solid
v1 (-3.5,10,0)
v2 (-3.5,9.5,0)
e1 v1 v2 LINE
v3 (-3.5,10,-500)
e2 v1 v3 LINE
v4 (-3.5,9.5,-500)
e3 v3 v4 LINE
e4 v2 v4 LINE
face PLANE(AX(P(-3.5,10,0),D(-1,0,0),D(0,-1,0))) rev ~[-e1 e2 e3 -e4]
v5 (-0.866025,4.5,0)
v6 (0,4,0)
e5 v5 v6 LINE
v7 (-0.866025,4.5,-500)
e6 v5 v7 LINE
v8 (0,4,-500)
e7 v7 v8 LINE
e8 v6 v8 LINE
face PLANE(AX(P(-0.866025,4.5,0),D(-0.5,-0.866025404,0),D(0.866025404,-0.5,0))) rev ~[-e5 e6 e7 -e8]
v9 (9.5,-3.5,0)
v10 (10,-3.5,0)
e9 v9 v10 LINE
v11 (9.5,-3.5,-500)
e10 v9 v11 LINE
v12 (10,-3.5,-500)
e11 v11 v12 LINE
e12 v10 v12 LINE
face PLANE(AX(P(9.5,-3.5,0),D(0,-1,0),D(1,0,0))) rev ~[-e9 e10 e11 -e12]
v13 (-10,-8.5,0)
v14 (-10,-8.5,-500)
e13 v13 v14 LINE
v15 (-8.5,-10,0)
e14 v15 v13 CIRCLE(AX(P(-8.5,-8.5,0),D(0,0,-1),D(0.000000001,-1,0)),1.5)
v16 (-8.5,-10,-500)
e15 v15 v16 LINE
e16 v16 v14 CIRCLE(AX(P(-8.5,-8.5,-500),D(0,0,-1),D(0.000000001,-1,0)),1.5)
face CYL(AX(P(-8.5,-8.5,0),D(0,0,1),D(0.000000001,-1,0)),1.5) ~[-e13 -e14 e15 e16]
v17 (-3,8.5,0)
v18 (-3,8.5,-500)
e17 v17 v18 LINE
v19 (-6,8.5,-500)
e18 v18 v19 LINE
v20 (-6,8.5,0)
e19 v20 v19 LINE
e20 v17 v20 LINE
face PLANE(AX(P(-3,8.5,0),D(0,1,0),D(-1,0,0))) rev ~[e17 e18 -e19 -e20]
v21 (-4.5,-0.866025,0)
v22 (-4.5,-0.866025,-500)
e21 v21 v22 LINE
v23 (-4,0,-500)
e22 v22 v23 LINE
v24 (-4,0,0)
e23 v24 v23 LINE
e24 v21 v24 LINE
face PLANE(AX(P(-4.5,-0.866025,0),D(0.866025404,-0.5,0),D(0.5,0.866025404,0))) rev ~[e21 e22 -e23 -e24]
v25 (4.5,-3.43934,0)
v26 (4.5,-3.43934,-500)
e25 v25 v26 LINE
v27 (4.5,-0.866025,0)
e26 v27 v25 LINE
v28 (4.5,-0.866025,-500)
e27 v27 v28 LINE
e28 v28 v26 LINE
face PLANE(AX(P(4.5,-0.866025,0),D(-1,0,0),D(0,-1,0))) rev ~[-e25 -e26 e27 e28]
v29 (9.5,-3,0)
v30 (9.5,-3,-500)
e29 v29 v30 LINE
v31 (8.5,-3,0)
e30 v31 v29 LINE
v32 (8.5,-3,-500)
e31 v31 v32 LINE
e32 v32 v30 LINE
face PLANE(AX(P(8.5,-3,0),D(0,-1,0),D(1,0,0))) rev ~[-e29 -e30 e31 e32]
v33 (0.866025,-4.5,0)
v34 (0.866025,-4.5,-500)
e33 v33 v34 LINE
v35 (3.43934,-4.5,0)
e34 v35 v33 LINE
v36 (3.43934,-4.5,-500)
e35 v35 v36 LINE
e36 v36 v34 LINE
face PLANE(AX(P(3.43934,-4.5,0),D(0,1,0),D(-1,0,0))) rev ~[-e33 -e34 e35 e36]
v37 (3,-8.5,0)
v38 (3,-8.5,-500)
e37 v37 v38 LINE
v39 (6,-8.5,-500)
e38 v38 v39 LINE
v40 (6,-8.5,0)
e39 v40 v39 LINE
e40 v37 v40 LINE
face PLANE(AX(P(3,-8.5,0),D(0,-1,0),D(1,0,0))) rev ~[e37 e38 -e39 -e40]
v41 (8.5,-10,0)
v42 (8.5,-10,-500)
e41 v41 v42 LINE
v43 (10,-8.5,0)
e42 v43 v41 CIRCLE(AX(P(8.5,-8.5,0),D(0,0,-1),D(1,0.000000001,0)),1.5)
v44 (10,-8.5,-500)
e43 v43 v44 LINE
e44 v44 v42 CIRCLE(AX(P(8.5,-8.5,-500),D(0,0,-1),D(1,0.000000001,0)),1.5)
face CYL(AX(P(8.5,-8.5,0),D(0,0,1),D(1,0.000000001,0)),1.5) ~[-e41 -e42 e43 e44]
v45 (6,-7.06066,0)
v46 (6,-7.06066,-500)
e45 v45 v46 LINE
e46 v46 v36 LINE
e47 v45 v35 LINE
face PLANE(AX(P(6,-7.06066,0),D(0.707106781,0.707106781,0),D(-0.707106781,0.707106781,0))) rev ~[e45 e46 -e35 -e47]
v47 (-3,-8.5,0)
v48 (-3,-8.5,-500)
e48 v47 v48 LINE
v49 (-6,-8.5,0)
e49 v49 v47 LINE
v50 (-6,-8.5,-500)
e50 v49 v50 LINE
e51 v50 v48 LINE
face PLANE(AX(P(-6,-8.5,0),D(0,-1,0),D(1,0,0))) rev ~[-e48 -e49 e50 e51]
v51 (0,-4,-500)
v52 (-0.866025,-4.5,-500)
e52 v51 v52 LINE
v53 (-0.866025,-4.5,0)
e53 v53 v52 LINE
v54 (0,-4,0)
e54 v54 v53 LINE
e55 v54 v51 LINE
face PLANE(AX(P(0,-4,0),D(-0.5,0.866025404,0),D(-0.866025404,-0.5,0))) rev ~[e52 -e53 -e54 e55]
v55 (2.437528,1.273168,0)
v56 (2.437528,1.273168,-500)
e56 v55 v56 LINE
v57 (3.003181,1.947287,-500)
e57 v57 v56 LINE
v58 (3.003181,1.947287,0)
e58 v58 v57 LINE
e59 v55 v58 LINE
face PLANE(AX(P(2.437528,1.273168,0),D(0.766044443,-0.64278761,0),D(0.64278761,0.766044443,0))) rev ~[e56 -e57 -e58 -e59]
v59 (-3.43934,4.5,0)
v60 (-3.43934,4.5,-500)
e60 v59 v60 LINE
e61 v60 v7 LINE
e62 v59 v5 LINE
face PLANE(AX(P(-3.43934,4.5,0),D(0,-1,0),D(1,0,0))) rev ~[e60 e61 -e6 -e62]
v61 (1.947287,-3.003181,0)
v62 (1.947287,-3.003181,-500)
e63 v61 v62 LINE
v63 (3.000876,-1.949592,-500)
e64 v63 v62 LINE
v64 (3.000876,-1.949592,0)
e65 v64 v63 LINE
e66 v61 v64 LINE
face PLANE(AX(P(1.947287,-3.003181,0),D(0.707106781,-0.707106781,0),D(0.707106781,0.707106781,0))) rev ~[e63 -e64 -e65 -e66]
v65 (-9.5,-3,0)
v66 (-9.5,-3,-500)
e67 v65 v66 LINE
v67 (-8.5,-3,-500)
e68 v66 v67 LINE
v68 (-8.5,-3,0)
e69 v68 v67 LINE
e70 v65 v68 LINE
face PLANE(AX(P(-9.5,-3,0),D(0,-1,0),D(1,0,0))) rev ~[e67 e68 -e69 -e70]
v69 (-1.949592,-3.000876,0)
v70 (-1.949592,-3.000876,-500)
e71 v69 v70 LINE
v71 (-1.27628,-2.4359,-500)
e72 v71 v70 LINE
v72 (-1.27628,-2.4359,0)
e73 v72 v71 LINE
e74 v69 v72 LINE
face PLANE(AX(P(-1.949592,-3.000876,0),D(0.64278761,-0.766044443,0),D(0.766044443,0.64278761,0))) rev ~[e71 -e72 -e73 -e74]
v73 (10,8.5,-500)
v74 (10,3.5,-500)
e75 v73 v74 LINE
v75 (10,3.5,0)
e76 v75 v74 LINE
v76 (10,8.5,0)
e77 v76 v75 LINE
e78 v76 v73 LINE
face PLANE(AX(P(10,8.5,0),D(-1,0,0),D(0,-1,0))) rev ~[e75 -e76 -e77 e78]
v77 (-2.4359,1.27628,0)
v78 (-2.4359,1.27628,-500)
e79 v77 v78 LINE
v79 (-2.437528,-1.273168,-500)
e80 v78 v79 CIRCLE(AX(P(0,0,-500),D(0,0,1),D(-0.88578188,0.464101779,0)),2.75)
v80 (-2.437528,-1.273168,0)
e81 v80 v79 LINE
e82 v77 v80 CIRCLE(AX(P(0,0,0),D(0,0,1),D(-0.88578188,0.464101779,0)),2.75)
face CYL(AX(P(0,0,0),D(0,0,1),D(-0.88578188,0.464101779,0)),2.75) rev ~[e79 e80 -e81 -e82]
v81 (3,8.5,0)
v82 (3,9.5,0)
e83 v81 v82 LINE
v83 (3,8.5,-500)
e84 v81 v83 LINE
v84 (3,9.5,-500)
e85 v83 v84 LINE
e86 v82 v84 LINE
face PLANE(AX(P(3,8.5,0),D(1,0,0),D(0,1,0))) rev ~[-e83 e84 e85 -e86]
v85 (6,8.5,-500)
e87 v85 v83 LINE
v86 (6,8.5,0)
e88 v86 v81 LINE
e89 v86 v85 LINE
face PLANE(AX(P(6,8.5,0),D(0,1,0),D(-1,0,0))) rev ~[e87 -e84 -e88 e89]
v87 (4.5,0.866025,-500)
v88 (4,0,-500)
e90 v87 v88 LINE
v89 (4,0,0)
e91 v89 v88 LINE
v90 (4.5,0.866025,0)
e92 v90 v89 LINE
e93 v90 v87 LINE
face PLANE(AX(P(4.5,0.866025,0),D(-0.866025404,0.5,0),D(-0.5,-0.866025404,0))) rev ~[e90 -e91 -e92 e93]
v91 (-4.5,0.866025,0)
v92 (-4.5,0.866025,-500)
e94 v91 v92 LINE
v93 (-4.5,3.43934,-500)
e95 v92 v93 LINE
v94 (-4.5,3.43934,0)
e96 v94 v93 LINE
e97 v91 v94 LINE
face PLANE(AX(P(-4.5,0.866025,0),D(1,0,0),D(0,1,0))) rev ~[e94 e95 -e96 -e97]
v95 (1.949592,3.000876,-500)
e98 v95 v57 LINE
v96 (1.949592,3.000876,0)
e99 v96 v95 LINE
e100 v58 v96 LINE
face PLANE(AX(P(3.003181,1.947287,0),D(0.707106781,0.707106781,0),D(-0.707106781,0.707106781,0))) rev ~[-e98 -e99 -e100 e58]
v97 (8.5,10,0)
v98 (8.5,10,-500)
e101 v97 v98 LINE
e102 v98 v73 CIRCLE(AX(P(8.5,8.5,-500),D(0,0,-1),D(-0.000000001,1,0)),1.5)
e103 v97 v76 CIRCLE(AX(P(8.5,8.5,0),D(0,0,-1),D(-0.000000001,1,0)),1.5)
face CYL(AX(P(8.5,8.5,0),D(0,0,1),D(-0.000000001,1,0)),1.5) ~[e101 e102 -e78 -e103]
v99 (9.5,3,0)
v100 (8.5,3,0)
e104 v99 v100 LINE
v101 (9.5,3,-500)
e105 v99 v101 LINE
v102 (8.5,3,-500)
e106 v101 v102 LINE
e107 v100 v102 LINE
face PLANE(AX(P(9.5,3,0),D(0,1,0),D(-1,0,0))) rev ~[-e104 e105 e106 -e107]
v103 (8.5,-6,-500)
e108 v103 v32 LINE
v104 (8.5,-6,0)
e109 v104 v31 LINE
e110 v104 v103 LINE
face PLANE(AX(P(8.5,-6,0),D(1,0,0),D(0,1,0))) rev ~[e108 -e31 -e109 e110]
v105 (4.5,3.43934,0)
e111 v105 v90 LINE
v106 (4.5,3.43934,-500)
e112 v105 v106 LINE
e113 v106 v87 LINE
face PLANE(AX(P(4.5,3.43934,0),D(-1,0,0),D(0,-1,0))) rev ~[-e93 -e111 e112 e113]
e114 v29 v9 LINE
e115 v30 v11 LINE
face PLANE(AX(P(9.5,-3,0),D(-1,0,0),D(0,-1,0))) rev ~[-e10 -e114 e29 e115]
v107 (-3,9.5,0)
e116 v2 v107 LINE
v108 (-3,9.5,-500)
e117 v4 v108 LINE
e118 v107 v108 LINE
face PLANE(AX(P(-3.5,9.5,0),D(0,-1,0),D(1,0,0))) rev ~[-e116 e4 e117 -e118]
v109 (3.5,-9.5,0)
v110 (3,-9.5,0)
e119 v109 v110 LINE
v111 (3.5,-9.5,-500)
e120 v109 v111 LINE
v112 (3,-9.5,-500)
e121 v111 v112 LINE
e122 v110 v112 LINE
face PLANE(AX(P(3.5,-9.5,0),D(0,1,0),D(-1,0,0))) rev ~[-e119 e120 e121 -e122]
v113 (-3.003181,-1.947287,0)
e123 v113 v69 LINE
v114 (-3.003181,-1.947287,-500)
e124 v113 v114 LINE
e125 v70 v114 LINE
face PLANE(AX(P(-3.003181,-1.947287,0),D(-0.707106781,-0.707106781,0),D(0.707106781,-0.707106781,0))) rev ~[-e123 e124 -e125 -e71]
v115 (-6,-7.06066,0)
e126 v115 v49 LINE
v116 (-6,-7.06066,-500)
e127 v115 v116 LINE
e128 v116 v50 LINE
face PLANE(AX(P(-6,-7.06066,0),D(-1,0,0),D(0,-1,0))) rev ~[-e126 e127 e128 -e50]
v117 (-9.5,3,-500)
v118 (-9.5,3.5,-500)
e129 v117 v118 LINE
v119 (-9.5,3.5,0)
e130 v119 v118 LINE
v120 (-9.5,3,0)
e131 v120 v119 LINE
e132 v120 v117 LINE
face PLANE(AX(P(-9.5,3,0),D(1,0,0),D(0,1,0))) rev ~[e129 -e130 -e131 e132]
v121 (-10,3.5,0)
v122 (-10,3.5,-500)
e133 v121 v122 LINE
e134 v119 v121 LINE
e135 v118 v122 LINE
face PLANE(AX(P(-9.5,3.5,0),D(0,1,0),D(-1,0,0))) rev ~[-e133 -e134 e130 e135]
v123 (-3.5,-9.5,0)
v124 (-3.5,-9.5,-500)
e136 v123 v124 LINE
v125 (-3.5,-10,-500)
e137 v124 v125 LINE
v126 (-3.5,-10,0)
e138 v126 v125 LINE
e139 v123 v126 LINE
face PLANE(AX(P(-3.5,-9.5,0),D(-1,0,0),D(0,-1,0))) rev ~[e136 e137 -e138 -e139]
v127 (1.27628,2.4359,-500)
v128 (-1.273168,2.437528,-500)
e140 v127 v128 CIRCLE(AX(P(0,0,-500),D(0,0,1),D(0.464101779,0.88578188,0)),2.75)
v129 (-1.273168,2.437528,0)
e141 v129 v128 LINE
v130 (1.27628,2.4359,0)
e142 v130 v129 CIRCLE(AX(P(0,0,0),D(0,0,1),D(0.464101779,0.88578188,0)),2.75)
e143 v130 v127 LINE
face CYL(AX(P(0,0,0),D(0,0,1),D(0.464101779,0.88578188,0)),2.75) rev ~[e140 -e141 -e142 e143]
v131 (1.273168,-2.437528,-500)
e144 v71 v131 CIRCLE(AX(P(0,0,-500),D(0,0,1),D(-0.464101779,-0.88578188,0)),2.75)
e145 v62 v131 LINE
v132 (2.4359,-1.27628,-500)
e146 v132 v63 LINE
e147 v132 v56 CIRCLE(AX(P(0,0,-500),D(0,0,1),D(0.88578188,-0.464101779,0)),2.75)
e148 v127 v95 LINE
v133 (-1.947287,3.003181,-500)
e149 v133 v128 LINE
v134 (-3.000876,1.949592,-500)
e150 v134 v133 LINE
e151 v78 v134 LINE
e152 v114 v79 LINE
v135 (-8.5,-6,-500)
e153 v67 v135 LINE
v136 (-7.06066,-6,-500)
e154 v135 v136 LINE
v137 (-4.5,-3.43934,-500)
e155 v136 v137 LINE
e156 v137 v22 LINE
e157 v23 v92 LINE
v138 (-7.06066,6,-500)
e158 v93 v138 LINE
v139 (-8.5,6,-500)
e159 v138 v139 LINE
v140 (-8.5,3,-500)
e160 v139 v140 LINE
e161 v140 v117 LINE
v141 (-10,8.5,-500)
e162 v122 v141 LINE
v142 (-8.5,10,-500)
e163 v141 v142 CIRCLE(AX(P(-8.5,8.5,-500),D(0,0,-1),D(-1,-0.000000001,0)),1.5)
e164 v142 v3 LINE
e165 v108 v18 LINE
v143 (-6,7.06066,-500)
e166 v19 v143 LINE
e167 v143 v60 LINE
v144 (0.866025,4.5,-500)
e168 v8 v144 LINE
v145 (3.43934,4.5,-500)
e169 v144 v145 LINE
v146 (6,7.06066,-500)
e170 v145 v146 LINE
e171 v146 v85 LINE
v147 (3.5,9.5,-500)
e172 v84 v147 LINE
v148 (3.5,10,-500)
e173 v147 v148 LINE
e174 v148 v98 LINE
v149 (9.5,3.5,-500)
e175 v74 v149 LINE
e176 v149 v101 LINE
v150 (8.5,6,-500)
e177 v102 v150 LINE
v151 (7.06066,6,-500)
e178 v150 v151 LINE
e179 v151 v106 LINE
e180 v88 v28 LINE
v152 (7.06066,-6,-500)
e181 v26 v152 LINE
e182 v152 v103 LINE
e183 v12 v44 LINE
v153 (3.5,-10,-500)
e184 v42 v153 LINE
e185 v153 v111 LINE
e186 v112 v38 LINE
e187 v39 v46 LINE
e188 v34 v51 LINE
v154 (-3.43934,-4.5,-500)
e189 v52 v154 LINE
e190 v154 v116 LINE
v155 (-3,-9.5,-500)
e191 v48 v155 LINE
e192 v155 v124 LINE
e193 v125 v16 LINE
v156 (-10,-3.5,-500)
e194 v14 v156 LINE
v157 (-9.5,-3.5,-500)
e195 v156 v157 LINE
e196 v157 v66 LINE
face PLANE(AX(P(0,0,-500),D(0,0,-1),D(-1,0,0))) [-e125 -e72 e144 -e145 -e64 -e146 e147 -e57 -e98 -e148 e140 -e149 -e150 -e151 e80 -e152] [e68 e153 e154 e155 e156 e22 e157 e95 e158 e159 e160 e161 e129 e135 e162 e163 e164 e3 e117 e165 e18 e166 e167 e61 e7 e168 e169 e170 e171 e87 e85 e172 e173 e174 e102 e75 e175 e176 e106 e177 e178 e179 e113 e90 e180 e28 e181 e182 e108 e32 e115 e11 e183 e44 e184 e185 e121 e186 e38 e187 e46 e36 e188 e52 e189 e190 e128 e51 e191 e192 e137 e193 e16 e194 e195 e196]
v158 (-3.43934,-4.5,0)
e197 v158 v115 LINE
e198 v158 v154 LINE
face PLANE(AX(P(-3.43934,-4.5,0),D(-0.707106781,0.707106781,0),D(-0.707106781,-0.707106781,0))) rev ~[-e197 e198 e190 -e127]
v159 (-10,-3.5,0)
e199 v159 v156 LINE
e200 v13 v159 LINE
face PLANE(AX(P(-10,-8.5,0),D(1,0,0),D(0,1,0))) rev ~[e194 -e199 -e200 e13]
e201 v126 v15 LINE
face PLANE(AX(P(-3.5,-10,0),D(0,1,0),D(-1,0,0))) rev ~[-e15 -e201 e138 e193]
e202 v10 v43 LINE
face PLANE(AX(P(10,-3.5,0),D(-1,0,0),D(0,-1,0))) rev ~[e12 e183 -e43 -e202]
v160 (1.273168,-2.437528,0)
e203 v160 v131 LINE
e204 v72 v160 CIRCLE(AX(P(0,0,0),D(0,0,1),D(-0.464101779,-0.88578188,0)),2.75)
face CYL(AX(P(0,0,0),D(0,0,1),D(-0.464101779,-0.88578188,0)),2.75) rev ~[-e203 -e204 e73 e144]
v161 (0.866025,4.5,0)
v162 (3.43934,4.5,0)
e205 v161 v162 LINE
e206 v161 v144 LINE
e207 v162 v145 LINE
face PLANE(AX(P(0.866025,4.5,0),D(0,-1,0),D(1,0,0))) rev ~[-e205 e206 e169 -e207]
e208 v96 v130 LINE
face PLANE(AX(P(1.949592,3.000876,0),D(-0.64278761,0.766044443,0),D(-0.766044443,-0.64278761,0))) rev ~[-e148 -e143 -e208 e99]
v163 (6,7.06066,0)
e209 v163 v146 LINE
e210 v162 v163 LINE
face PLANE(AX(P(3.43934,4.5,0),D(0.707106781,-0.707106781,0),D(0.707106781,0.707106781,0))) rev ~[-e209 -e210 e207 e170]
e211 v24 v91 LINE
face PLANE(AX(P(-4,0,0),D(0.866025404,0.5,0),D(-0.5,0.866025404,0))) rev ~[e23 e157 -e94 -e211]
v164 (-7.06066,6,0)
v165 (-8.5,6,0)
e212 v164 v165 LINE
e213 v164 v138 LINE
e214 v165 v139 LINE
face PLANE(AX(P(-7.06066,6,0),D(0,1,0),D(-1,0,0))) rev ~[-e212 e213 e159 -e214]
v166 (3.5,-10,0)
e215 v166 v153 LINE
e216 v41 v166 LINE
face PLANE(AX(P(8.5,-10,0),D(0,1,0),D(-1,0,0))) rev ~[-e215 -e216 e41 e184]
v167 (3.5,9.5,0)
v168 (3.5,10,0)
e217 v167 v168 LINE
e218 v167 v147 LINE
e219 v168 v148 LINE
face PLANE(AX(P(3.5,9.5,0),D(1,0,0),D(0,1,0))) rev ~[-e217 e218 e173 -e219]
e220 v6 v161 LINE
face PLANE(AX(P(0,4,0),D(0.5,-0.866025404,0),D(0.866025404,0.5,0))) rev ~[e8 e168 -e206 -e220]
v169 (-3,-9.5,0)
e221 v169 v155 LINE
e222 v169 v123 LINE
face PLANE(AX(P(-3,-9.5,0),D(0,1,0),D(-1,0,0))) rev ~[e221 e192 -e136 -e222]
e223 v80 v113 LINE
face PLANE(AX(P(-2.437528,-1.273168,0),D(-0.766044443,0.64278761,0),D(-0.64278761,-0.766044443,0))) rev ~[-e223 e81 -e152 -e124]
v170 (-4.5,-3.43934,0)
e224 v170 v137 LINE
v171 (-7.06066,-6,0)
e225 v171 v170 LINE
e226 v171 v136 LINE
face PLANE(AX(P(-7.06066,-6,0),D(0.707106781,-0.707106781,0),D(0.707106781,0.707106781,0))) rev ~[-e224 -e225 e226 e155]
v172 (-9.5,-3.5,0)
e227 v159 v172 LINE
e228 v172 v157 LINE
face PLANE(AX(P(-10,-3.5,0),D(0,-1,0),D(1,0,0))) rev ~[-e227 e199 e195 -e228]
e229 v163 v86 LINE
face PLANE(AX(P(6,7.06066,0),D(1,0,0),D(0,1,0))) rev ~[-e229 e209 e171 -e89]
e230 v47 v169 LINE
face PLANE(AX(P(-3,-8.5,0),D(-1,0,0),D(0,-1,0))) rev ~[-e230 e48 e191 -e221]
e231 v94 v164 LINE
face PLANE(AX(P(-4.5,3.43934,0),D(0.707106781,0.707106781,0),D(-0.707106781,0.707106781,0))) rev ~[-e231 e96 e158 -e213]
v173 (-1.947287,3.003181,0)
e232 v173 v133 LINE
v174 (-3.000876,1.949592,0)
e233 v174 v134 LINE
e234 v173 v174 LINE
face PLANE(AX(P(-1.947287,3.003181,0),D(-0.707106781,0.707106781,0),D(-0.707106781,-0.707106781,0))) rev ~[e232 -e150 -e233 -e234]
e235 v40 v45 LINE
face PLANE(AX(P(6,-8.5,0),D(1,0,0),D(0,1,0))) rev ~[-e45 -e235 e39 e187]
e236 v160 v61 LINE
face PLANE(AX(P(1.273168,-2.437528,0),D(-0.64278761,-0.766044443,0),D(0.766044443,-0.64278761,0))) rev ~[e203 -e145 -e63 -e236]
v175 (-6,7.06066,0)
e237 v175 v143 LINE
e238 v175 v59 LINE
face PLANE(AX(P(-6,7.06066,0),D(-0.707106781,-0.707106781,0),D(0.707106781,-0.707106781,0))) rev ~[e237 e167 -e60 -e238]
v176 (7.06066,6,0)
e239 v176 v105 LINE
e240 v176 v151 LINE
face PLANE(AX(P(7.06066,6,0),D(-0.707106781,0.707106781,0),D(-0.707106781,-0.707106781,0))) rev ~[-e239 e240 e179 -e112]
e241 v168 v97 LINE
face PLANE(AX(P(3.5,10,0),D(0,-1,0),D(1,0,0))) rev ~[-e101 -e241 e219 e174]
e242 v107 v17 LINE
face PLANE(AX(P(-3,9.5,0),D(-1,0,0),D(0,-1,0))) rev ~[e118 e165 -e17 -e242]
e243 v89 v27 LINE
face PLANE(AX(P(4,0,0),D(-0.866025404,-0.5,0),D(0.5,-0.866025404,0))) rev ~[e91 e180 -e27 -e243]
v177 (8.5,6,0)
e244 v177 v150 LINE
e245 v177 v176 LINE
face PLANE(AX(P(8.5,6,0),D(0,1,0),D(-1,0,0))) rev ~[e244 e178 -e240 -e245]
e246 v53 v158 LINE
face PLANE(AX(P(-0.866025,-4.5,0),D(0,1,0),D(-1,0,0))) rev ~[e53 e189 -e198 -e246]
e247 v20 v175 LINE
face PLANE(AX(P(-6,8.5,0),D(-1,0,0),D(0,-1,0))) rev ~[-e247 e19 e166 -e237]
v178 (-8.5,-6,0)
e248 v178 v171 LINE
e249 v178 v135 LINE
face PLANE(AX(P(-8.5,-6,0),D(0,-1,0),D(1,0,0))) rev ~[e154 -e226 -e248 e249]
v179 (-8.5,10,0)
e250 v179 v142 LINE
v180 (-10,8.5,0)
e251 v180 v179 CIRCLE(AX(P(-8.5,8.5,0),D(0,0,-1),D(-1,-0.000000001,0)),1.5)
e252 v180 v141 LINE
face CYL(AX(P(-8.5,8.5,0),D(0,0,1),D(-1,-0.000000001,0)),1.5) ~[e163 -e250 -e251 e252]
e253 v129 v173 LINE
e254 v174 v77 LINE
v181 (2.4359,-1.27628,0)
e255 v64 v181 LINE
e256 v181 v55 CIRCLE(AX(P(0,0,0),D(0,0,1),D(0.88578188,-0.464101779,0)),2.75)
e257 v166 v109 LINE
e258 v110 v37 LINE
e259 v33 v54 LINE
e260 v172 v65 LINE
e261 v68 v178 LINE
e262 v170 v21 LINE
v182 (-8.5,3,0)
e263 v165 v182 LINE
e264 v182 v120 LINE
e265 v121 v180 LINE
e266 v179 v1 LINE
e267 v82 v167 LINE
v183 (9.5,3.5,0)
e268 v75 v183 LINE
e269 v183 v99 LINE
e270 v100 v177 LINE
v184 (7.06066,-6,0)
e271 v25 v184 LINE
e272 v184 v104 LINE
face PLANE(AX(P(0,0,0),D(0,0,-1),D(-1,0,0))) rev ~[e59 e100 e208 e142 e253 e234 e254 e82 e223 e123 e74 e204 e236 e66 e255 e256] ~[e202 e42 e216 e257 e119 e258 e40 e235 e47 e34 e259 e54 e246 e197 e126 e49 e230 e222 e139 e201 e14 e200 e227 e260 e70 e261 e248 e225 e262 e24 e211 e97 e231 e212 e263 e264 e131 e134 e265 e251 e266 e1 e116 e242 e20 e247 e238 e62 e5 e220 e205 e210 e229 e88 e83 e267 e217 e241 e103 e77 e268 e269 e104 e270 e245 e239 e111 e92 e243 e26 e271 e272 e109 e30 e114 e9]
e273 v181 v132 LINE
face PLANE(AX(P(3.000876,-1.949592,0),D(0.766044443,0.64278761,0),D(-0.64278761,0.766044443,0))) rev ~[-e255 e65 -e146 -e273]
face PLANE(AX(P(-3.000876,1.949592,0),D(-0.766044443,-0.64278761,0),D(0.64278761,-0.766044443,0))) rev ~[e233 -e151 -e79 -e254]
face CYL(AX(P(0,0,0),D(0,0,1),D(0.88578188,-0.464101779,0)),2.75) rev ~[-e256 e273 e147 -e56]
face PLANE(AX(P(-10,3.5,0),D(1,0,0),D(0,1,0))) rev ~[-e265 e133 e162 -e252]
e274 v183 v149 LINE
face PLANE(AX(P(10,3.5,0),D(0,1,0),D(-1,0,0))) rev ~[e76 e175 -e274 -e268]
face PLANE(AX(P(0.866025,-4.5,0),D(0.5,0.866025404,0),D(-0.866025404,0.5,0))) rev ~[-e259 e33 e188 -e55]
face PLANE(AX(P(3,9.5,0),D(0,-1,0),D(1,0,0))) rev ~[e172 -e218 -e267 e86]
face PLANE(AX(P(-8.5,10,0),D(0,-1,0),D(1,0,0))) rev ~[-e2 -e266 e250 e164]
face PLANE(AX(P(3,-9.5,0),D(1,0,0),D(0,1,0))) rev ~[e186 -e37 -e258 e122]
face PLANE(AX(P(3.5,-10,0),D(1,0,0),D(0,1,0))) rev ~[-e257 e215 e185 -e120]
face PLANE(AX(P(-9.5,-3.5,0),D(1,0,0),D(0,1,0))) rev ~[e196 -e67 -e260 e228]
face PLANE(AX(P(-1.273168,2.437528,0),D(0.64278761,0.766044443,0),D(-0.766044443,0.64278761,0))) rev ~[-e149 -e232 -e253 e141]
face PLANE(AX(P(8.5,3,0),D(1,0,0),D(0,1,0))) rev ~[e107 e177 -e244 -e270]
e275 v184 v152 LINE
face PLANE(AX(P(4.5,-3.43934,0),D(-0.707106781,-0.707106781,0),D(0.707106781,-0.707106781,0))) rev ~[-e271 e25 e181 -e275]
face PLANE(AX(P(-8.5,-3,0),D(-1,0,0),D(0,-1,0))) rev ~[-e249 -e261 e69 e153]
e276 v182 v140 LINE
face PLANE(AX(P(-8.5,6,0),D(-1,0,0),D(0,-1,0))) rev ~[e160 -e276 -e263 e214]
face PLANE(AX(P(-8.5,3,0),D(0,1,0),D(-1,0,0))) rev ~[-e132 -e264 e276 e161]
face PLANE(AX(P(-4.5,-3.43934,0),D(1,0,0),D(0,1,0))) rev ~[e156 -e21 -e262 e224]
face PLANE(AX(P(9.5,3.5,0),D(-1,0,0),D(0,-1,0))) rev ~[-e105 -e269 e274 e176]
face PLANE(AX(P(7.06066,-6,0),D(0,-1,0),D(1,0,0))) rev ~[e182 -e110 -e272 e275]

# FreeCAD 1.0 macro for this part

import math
import FreeCAD as App
import Part
import Sketcher
Q = App.Units.Quantity

doc = App.newDocument("Part")
params = doc.addObject("Spreadsheet::Sheet", "Params")
for row, (alias, value) in enumerate([
    ("sketch1_radius", "1.5 mm"),
    ("sketch1_width", "1 mm"),
    ("sketch1_width2", "5 mm"),
    ("sketch1_width3", "3 mm"),
    ("sketch1_length", "1 mm"),
    ("pad1_length", "500 mm"),
    ("sketch2_radius", "2.75 mm"),
    ("sketch2_length", "0.88 mm"),
    ("sketch2_length2", "1.49 mm"),
], start=1):
    params.set(f"A{row}", alias)
    params.set(f"B{row}", "=" + value)
    params.setAlias(f"B{row}", alias)

body = doc.addObject("PartDesign::Body", "Body")

# Sketch on XY plane
sketch1 = body.newObject("Sketcher::SketchObject", "Sketch")
sketch1.AttachmentSupport = (doc.getObject("XY_Plane"), [""])
sketch1.MapMode = "FlatFace"
sketch1.addGeometry([
    Part.LineSegment(App.Vector(-4.5, 0.9, 0), App.Vector(-4, 0, 0)),  # 0
    Part.LineSegment(App.Vector(-4, 0, 0), App.Vector(-4.5, -0.9, 0)),  # 1
    Part.LineSegment(App.Vector(-4.5, -0.9, 0), App.Vector(-4.5, -3.4, 0)),  # 2
    Part.LineSegment(App.Vector(-4.5, -3.4, 0), App.Vector(-7.1, -6, 0)),  # 3
    Part.LineSegment(App.Vector(-7.1, -6, 0), App.Vector(-8.5, -6, 0)),  # 4
    Part.LineSegment(App.Vector(-8.5, -6, 0), App.Vector(-8.5, -3, 0)),  # 5
    Part.LineSegment(App.Vector(-8.5, -3, 0), App.Vector(-9.5, -3, 0)),  # 6
    Part.LineSegment(App.Vector(-9.5, -3, 0), App.Vector(-9.5, -3.5, 0)),  # 7
    Part.LineSegment(App.Vector(-9.5, -3.5, 0), App.Vector(-10, -3.5, 0)),  # 8
    Part.LineSegment(App.Vector(-10, -3.5, 0), App.Vector(-10, -8.5, 0)),  # 9
    Part.ArcOfCircle(Part.Circle(App.Vector(-8.5, -8.5, 0), App.Vector(0, 0, 1), 1.5), math.radians(180), math.radians(270)),  # 10
    Part.LineSegment(App.Vector(-8.5, -10, 0), App.Vector(-3.5, -10, 0)),  # 11
    Part.LineSegment(App.Vector(-3.5, -10, 0), App.Vector(-3.5, -9.5, 0)),  # 12
    Part.LineSegment(App.Vector(-3.5, -9.5, 0), App.Vector(-3, -9.5, 0)),  # 13
    Part.LineSegment(App.Vector(-3, -9.5, 0), App.Vector(-3, -8.5, 0)),  # 14
    Part.LineSegment(App.Vector(-3, -8.5, 0), App.Vector(-6, -8.5, 0)),  # 15
    Part.LineSegment(App.Vector(-6, -8.5, 0), App.Vector(-6, -7.1, 0)),  # 16
    Part.LineSegment(App.Vector(-6, -7.1, 0), App.Vector(-3.4, -4.5, 0)),  # 17
    Part.LineSegment(App.Vector(-3.4, -4.5, 0), App.Vector(-0.9, -4.5, 0)),  # 18
    Part.LineSegment(App.Vector(-0.9, -4.5, 0), App.Vector(0, -4, 0)),  # 19
    Part.LineSegment(App.Vector(0, -4, 0), App.Vector(0.9, -4.5, 0)),  # 20
    Part.LineSegment(App.Vector(0.9, -4.5, 0), App.Vector(3.4, -4.5, 0)),  # 21
    Part.LineSegment(App.Vector(3.4, -4.5, 0), App.Vector(6, -7.1, 0)),  # 22
    Part.LineSegment(App.Vector(6, -7.1, 0), App.Vector(6, -8.5, 0)),  # 23
    Part.LineSegment(App.Vector(6, -8.5, 0), App.Vector(3, -8.5, 0)),  # 24
    Part.LineSegment(App.Vector(3, -8.5, 0), App.Vector(3, -9.5, 0)),  # 25
    Part.LineSegment(App.Vector(3, -9.5, 0), App.Vector(3.5, -9.5, 0)),  # 26
    Part.LineSegment(App.Vector(3.5, -9.5, 0), App.Vector(3.5, -10, 0)),  # 27
    Part.LineSegment(App.Vector(3.5, -10, 0), App.Vector(8.5, -10, 0)),  # 28
    Part.ArcOfCircle(Part.Circle(App.Vector(8.5, -8.5, 0), App.Vector(0, 0, 1), 1.5), math.radians(-90), math.radians(0)),  # 29
    Part.LineSegment(App.Vector(10, -8.5, 0), App.Vector(10, -3.5, 0)),  # 30
    Part.LineSegment(App.Vector(10, -3.5, 0), App.Vector(9.5, -3.5, 0)),  # 31
    Part.LineSegment(App.Vector(9.5, -3.5, 0), App.Vector(9.5, -3, 0)),  # 32
    Part.LineSegment(App.Vector(9.5, -3, 0), App.Vector(8.5, -3, 0)),  # 33
    Part.LineSegment(App.Vector(8.5, -3, 0), App.Vector(8.5, -6, 0)),  # 34
    Part.LineSegment(App.Vector(8.5, -6, 0), App.Vector(7.1, -6, 0)),  # 35
    Part.LineSegment(App.Vector(7.1, -6, 0), App.Vector(4.5, -3.4, 0)),  # 36
    Part.LineSegment(App.Vector(4.5, -3.4, 0), App.Vector(4.5, -0.9, 0)),  # 37
    Part.LineSegment(App.Vector(4.5, -0.9, 0), App.Vector(4, 0, 0)),  # 38
    Part.LineSegment(App.Vector(4, 0, 0), App.Vector(4.5, 0.9, 0)),  # 39
    Part.LineSegment(App.Vector(4.5, 0.9, 0), App.Vector(4.5, 3.4, 0)),  # 40
    Part.LineSegment(App.Vector(4.5, 3.4, 0), App.Vector(7.1, 6, 0)),  # 41
    Part.LineSegment(App.Vector(7.1, 6, 0), App.Vector(8.5, 6, 0)),  # 42
    Part.LineSegment(App.Vector(8.5, 6, 0), App.Vector(8.5, 3, 0)),  # 43
    Part.LineSegment(App.Vector(8.5, 3, 0), App.Vector(9.5, 3, 0)),  # 44
    Part.LineSegment(App.Vector(9.5, 3, 0), App.Vector(9.5, 3.5, 0)),  # 45
    Part.LineSegment(App.Vector(9.5, 3.5, 0), App.Vector(10, 3.5, 0)),  # 46
    Part.LineSegment(App.Vector(10, 3.5, 0), App.Vector(10, 8.5, 0)),  # 47
    Part.ArcOfCircle(Part.Circle(App.Vector(8.5, 8.5, 0), App.Vector(0, 0, 1), 1.5), math.radians(0), math.radians(90)),  # 48
    Part.LineSegment(App.Vector(8.5, 10, 0), App.Vector(3.5, 10, 0)),  # 49
    Part.LineSegment(App.Vector(3.5, 10, 0), App.Vector(3.5, 9.5, 0)),  # 50
    Part.LineSegment(App.Vector(3.5, 9.5, 0), App.Vector(3, 9.5, 0)),  # 51
    Part.LineSegment(App.Vector(3, 9.5, 0), App.Vector(3, 8.5, 0)),  # 52
    Part.LineSegment(App.Vector(3, 8.5, 0), App.Vector(6, 8.5, 0)),  # 53
    Part.LineSegment(App.Vector(6, 8.5, 0), App.Vector(6, 7.1, 0)),  # 54
    Part.LineSegment(App.Vector(6, 7.1, 0), App.Vector(3.4, 4.5, 0)),  # 55
    Part.LineSegment(App.Vector(3.4, 4.5, 0), App.Vector(0.9, 4.5, 0)),  # 56
    Part.LineSegment(App.Vector(0.9, 4.5, 0), App.Vector(0, 4, 0)),  # 57
    Part.LineSegment(App.Vector(0, 4, 0), App.Vector(-0.9, 4.5, 0)),  # 58
    Part.LineSegment(App.Vector(-0.9, 4.5, 0), App.Vector(-3.4, 4.5, 0)),  # 59
    Part.LineSegment(App.Vector(-3.4, 4.5, 0), App.Vector(-6, 7.1, 0)),  # 60
    Part.LineSegment(App.Vector(-6, 7.1, 0), App.Vector(-6, 8.5, 0)),  # 61
    Part.LineSegment(App.Vector(-6, 8.5, 0), App.Vector(-3, 8.5, 0)),  # 62
    Part.LineSegment(App.Vector(-3, 8.5, 0), App.Vector(-3, 9.5, 0)),  # 63
    Part.LineSegment(App.Vector(-3, 9.5, 0), App.Vector(-3.5, 9.5, 0)),  # 64
    Part.LineSegment(App.Vector(-3.5, 9.5, 0), App.Vector(-3.5, 10, 0)),  # 65
    Part.LineSegment(App.Vector(-3.5, 10, 0), App.Vector(-8.5, 10, 0)),  # 66
    Part.ArcOfCircle(Part.Circle(App.Vector(-8.5, 8.5, 0), App.Vector(0, 0, 1), 1.5), math.radians(90), math.radians(180)),  # 67
    Part.LineSegment(App.Vector(-10, 8.5, 0), App.Vector(-10, 3.5, 0)),  # 68
    Part.LineSegment(App.Vector(-10, 3.5, 0), App.Vector(-9.5, 3.5, 0)),  # 69
    Part.LineSegment(App.Vector(-9.5, 3.5, 0), App.Vector(-9.5, 3, 0)),  # 70
    Part.LineSegment(App.Vector(-9.5, 3, 0), App.Vector(-8.5, 3, 0)),  # 71
    Part.LineSegment(App.Vector(-8.5, 3, 0), App.Vector(-8.5, 6, 0)),  # 72
    Part.LineSegment(App.Vector(-8.5, 6, 0), App.Vector(-7.1, 6, 0)),  # 73
    Part.LineSegment(App.Vector(-7.1, 6, 0), App.Vector(-4.5, 3.4, 0)),  # 74
    Part.LineSegment(App.Vector(-4.5, 3.4, 0), App.Vector(-4.5, 0.9, 0)),  # 75
], False)
sketch1.addConstraint([
    Sketcher.Constraint("Coincident", 0, 2, 1, 1),
    Sketcher.Constraint("Coincident", 1, 2, 2, 1),
    Sketcher.Constraint("Coincident", 2, 2, 3, 1),
    Sketcher.Constraint("Coincident", 3, 2, 4, 1),
    Sketcher.Constraint("Coincident", 4, 2, 5, 1),
    Sketcher.Constraint("Coincident", 5, 2, 6, 1),
    Sketcher.Constraint("Coincident", 6, 2, 7, 1),
    Sketcher.Constraint("Coincident", 7, 2, 8, 1),
    Sketcher.Constraint("Coincident", 8, 2, 9, 1),
    Sketcher.Constraint("Tangent", 9, 2, 10, 1),
    Sketcher.Constraint("Tangent", 10, 2, 11, 1),
    Sketcher.Constraint("Coincident", 11, 2, 12, 1),
    Sketcher.Constraint("Coincident", 12, 2, 13, 1),
    Sketcher.Constraint("Coincident", 13, 2, 14, 1),
    Sketcher.Constraint("Coincident", 14, 2, 15, 1),
    Sketcher.Constraint("Coincident", 15, 2, 16, 1),
    Sketcher.Constraint("Coincident", 16, 2, 17, 1),
    Sketcher.Constraint("Coincident", 17, 2, 18, 1),
    Sketcher.Constraint("Coincident", 18, 2, 19, 1),
    Sketcher.Constraint("Coincident", 19, 2, 20, 1),
    Sketcher.Constraint("Coincident", 20, 2, 21, 1),
    Sketcher.Constraint("Coincident", 21, 2, 22, 1),
    Sketcher.Constraint("Coincident", 22, 2, 23, 1),
    Sketcher.Constraint("Coincident", 23, 2, 24, 1),
    Sketcher.Constraint("Coincident", 24, 2, 25, 1),
    Sketcher.Constraint("Coincident", 25, 2, 26, 1),
    Sketcher.Constraint("Coincident", 26, 2, 27, 1),
    Sketcher.Constraint("Coincident", 27, 2, 28, 1),
    Sketcher.Constraint("Tangent", 28, 2, 29, 1),
    Sketcher.Constraint("Tangent", 29, 2, 30, 1),
    Sketcher.Constraint("Coincident", 30, 2, 31, 1),
    Sketcher.Constraint("Coincident", 31, 2, 32, 1),
    Sketcher.Constraint("Coincident", 32, 2, 33, 1),
    Sketcher.Constraint("Coincident", 33, 2, 34, 1),
    Sketcher.Constraint("Coincident", 34, 2, 35, 1),
    Sketcher.Constraint("Coincident", 35, 2, 36, 1),
    Sketcher.Constraint("Coincident", 36, 2, 37, 1),
    Sketcher.Constraint("Coincident", 37, 2, 38, 1),
    Sketcher.Constraint("Coincident", 38, 2, 39, 1),
    Sketcher.Constraint("Coincident", 39, 2, 40, 1),
    Sketcher.Constraint("Coincident", 40, 2, 41, 1),
    Sketcher.Constraint("Coincident", 41, 2, 42, 1),
    Sketcher.Constraint("Coincident", 42, 2, 43, 1),
    Sketcher.Constraint("Coincident", 43, 2, 44, 1),
    Sketcher.Constraint("Coincident", 44, 2, 45, 1),
    Sketcher.Constraint("Coincident", 45, 2, 46, 1),
    Sketcher.Constraint("Coincident", 46, 2, 47, 1),
    Sketcher.Constraint("Tangent", 47, 2, 48, 1),
    Sketcher.Constraint("Tangent", 48, 2, 49, 1),
    Sketcher.Constraint("Coincident", 49, 2, 50, 1),
    Sketcher.Constraint("Coincident", 50, 2, 51, 1),
    Sketcher.Constraint("Coincident", 51, 2, 52, 1),
    Sketcher.Constraint("Coincident", 52, 2, 53, 1),
    Sketcher.Constraint("Coincident", 53, 2, 54, 1),
    Sketcher.Constraint("Coincident", 54, 2, 55, 1),
    Sketcher.Constraint("Coincident", 55, 2, 56, 1),
    Sketcher.Constraint("Coincident", 56, 2, 57, 1),
    Sketcher.Constraint("Coincident", 57, 2, 58, 1),
    Sketcher.Constraint("Coincident", 58, 2, 59, 1),
    Sketcher.Constraint("Coincident", 59, 2, 60, 1),
    Sketcher.Constraint("Coincident", 60, 2, 61, 1),
    Sketcher.Constraint("Coincident", 61, 2, 62, 1),
    Sketcher.Constraint("Coincident", 62, 2, 63, 1),
    Sketcher.Constraint("Coincident", 63, 2, 64, 1),
    Sketcher.Constraint("Coincident", 64, 2, 65, 1),
    Sketcher.Constraint("Coincident", 65, 2, 66, 1),
    Sketcher.Constraint("Tangent", 66, 2, 67, 1),
    Sketcher.Constraint("Tangent", 67, 2, 68, 1),
    Sketcher.Constraint("Coincident", 68, 2, 69, 1),
    Sketcher.Constraint("Coincident", 69, 2, 70, 1),
    Sketcher.Constraint("Coincident", 70, 2, 71, 1),
    Sketcher.Constraint("Coincident", 71, 2, 72, 1),
    Sketcher.Constraint("Coincident", 72, 2, 73, 1),
    Sketcher.Constraint("Coincident", 73, 2, 74, 1),
    Sketcher.Constraint("Coincident", 74, 2, 75, 1),
    Sketcher.Constraint("Coincident", 75, 2, 0, 1),
    Sketcher.Constraint("Vertical", 2),
    Sketcher.Constraint("Horizontal", 4),
    Sketcher.Constraint("Vertical", 5),
    Sketcher.Constraint("Horizontal", 6),
    Sketcher.Constraint("Vertical", 7),
    Sketcher.Constraint("Horizontal", 8),
    Sketcher.Constraint("Vertical", 9),
    Sketcher.Constraint("Horizontal", 11),
    Sketcher.Constraint("Vertical", 12),
    Sketcher.Constraint("Horizontal", 13),
    Sketcher.Constraint("Vertical", 14),
    Sketcher.Constraint("Horizontal", 15),
    Sketcher.Constraint("Vertical", 16),
    Sketcher.Constraint("Horizontal", 18),
    Sketcher.Constraint("Horizontal", 21),
    Sketcher.Constraint("Vertical", 23),
    Sketcher.Constraint("Horizontal", 24),
    Sketcher.Constraint("Vertical", 25),
    Sketcher.Constraint("Horizontal", 26),
    Sketcher.Constraint("Vertical", 27),
    Sketcher.Constraint("Horizontal", 28),
    Sketcher.Constraint("Vertical", 30),
    Sketcher.Constraint("Horizontal", 31),
    Sketcher.Constraint("Vertical", 32),
    Sketcher.Constraint("Horizontal", 33),
    Sketcher.Constraint("Vertical", 34),
    Sketcher.Constraint("Horizontal", 35),
    Sketcher.Constraint("Vertical", 37),
    Sketcher.Constraint("Vertical", 40),
    Sketcher.Constraint("Horizontal", 42),
    Sketcher.Constraint("Vertical", 43),
    Sketcher.Constraint("Horizontal", 44),
    Sketcher.Constraint("Vertical", 45),
    Sketcher.Constraint("Horizontal", 46),
    Sketcher.Constraint("Vertical", 47),
    Sketcher.Constraint("Horizontal", 49),
    Sketcher.Constraint("Vertical", 50),
    Sketcher.Constraint("Horizontal", 51),
    Sketcher.Constraint("Vertical", 52),
    Sketcher.Constraint("Horizontal", 53),
    Sketcher.Constraint("Vertical", 54),
    Sketcher.Constraint("Horizontal", 56),
    Sketcher.Constraint("Horizontal", 59),
    Sketcher.Constraint("Vertical", 61),
    Sketcher.Constraint("Horizontal", 62),
    Sketcher.Constraint("Vertical", 63),
    Sketcher.Constraint("Horizontal", 64),
    Sketcher.Constraint("Vertical", 65),
    Sketcher.Constraint("Horizontal", 66),
    Sketcher.Constraint("Vertical", 68),
    Sketcher.Constraint("Horizontal", 69),
    Sketcher.Constraint("Vertical", 70),
    Sketcher.Constraint("Horizontal", 71),
    Sketcher.Constraint("Vertical", 72),
    Sketcher.Constraint("Horizontal", 73),
    Sketcher.Constraint("Vertical", 75),
    Sketcher.Constraint("Equal", 10, 29),
    Sketcher.Constraint("Equal", 29, 48),
    Sketcher.Constraint("Equal", 48, 67),
    Sketcher.Constraint("Symmetric", 10, 3, 48, 3, -1, 1),
    Sketcher.Constraint("Symmetric", 29, 3, 67, 3, -1, 1),
    Sketcher.Constraint("Symmetric", 0, 2, 38, 2, -1, 1),
    Sketcher.Constraint("Symmetric", 1, 2, 39, 2, -1, 1),
    Sketcher.Constraint("Symmetric", 3, 2, 41, 2, -1, 1),
    Sketcher.Constraint("Symmetric", 5, 2, 43, 2, -1, 1),
    Sketcher.Constraint("Symmetric", 7, 2, 45, 2, -1, 1),
    Sketcher.Constraint("Symmetric", 12, 2, 50, 2, -1, 1),
    Sketcher.Constraint("Symmetric", 14, 2, 52, 2, -1, 1),
    Sketcher.Constraint("Symmetric", 16, 2, 54, 2, -1, 1),
    Sketcher.Constraint("Symmetric", 17, 2, 55, 2, -1, 1),
    Sketcher.Constraint("Symmetric", 19, 2, 57, 2, -1, 1),
    Sketcher.Constraint("Symmetric", 20, 2, 58, 2, -1, 1),
    Sketcher.Constraint("Symmetric", 22, 2, 60, 2, -1, 1),
    Sketcher.Constraint("Symmetric", 24, 2, 62, 2, -1, 1),
    Sketcher.Constraint("Symmetric", 26, 2, 64, 2, -1, 1),
    Sketcher.Constraint("Symmetric", 31, 2, 69, 2, -1, 1),
    Sketcher.Constraint("Symmetric", 33, 2, 71, 2, -1, 1),
    Sketcher.Constraint("Symmetric", 35, 2, 73, 2, -1, 1),
    Sketcher.Constraint("Symmetric", 36, 2, 74, 2, -1, 1),
    Sketcher.Constraint("Symmetric", 10, 3, 29, 3, -2),
    Sketcher.Constraint("Symmetric", 18, 2, 20, 2, -2),
    Sketcher.Constraint("Symmetric", 16, 2, 22, 2, -2),
    Sketcher.Constraint("Symmetric", 14, 2, 24, 2, -2),
    Sketcher.Constraint("Symmetric", 12, 2, 26, 2, -2),
    Sketcher.Constraint("Symmetric", 7, 2, 31, 2, -2),
    Sketcher.Constraint("Symmetric", 5, 2, 33, 2, -2),
    Sketcher.Constraint("Symmetric", 3, 2, 35, 2, -2),
    Sketcher.Constraint("Symmetric", 2, 2, 36, 2, -2),
    Sketcher.Constraint("PointOnObject", 0, 2, -1),
    Sketcher.Constraint("PointOnObject", 19, 2, -2),
    Sketcher.Constraint("Parallel", 3, 17),
    Sketcher.Constraint("Perpendicular", 0, 19),
    Sketcher.Constraint("Perpendicular", 1, 20),
    Sketcher.Constraint("Perpendicular", 17, 22),
    Sketcher.Constraint("Parallel", 22, 36),
    Sketcher.Constraint("Perpendicular", 19, 38),
    Sketcher.Constraint("Perpendicular", 36, 41),
    Sketcher.Constraint("Perpendicular", 38, 57),
    Sketcher.Constraint("Perpendicular", 55, 60),
    Sketcher.Constraint("Horizontal", 9, 2, 14, 2),
    Sketcher.Constraint("Vertical", 67, 3, 4, 2),
    Sketcher.Constraint("Equal", 8, 13),
    Sketcher.Constraint("Equal", 59, 2),
    Sketcher.Constraint("Equal", 62, 5),
    Sketcher.Constraint("Equal", 69, 7),
    Sketcher.Constraint("Equal", 66, 9),
    Sketcher.Constraint("Equal", 7, 12),
    Sketcher.Constraint("Equal", 73, 16),
    Sketcher.Constraint("Equal", 3, 17),
    Sketcher.Constraint("Equal", 1, 19),
    Sketcher.Constraint("Radius", 10, 1.5),
    Sketcher.Constraint("DistanceX", 6, 2, 6, 1, 1.0),
    Sketcher.Constraint("DistanceX", 11, 1, 11, 2, 5.0),
    Sketcher.Constraint("DistanceX", 15, 2, 15, 1, 3.0),
    Sketcher.Constraint("Angle", 0, Q("-60 deg")),
    Sketcher.Constraint("Distance", 0, 1.0),
    Sketcher.Constraint("DistanceX", 0, 2, -1, 1, 4.0),
    Sketcher.Constraint("DistanceY", 3, 2, -1, 1, 6.0),
    Sketcher.Constraint("DistanceX", 4, 2, 4, 1, 1.43934),
])
sketch1.setExpression("Constraints[186]", "Params.sketch1_radius")
sketch1.setExpression("Constraints[187]", "Params.sketch1_width")
sketch1.setExpression("Constraints[188]", "Params.sketch1_width2")
sketch1.setExpression("Constraints[189]", "Params.sketch1_width3")
sketch1.setExpression("Constraints[191]", "Params.sketch1_length")
pad1 = body.newObject("PartDesign::Pad", "Pad")
pad1.Profile = sketch1
pad1.setExpression("Length", "Params.pad1_length")
pad1.Reversed = True

# Sketch on XY plane
sketch2 = body.newObject("Sketcher::SketchObject", "Sketch001")
sketch2.AttachmentSupport = (doc.getObject("XY_Plane"), [""])
sketch2.MapMode = "FlatFace"
sketch2.addGeometry([
    Part.LineSegment(App.Vector(1.9, 3, 0), App.Vector(1.3, 2.4, 0)),  # 0
    Part.ArcOfCircle(Part.Circle(App.Vector(0, 0, 0), App.Vector(0, 0, 1), 2.8), math.radians(62), math.radians(118)),  # 1
    Part.LineSegment(App.Vector(-1.3, 2.4, 0), App.Vector(-1.9, 3, 0)),  # 2
    Part.LineSegment(App.Vector(-1.9, 3, 0), App.Vector(-3, 1.9, 0)),  # 3
    Part.LineSegment(App.Vector(-3, 1.9, 0), App.Vector(-2.4, 1.3, 0)),  # 4
    Part.ArcOfCircle(Part.Circle(App.Vector(0, 0, 0), App.Vector(0, 0, 1), 2.8), math.radians(152), math.radians(208)),  # 5
    Part.LineSegment(App.Vector(-2.4, -1.3, 0), App.Vector(-3, -1.9, 0)),  # 6
    Part.LineSegment(App.Vector(-3, -1.9, 0), App.Vector(-1.9, -3, 0)),  # 7
    Part.LineSegment(App.Vector(-1.9, -3, 0), App.Vector(-1.3, -2.4, 0)),  # 8
    Part.ArcOfCircle(Part.Circle(App.Vector(0, 0, 0), App.Vector(0, 0, 1), 2.8), math.radians(-118), math.radians(-62)),  # 9
    Part.LineSegment(App.Vector(1.3, -2.4, 0), App.Vector(1.9, -3, 0)),  # 10
    Part.LineSegment(App.Vector(1.9, -3, 0), App.Vector(3, -1.9, 0)),  # 11
    Part.LineSegment(App.Vector(3, -1.9, 0), App.Vector(2.4, -1.3, 0)),  # 12
    Part.ArcOfCircle(Part.Circle(App.Vector(0, 0, 0), App.Vector(0, 0, 1), 2.8), math.radians(-28), math.radians(28)),  # 13
    Part.LineSegment(App.Vector(2.4, 1.3, 0), App.Vector(3, 1.9, 0)),  # 14
    Part.LineSegment(App.Vector(3, 1.9, 0), App.Vector(1.9, 3, 0)),  # 15
], False)
sketch2.addConstraint([
    Sketcher.Constraint("Coincident", 0, 2, 1, 1),
    Sketcher.Constraint("Coincident", 1, 2, 2, 1),
    Sketcher.Constraint("Coincident", 2, 2, 3, 1),
    Sketcher.Constraint("Coincident", 3, 2, 4, 1),
    Sketcher.Constraint("Coincident", 4, 2, 5, 1),
    Sketcher.Constraint("Coincident", 5, 2, 6, 1),
    Sketcher.Constraint("Coincident", 6, 2, 7, 1),
    Sketcher.Constraint("Coincident", 7, 2, 8, 1),
    Sketcher.Constraint("Coincident", 8, 2, 9, 1),
    Sketcher.Constraint("Coincident", 9, 2, 10, 1),
    Sketcher.Constraint("Coincident", 10, 2, 11, 1),
    Sketcher.Constraint("Coincident", 11, 2, 12, 1),
    Sketcher.Constraint("Coincident", 12, 2, 13, 1),
    Sketcher.Constraint("Coincident", 13, 2, 14, 1),
    Sketcher.Constraint("Coincident", 14, 2, 15, 1),
    Sketcher.Constraint("Coincident", 15, 2, 0, 1),
    Sketcher.Constraint("Coincident", 1, 3, -1, 1),
    Sketcher.Constraint("Coincident", 5, 3, -1, 1),
    Sketcher.Constraint("Coincident", 9, 3, -1, 1),
    Sketcher.Constraint("Coincident", 13, 3, -1, 1),
    Sketcher.Constraint("Equal", 1, 5),
    Sketcher.Constraint("Equal", 5, 9),
    Sketcher.Constraint("Equal", 9, 13),
    Sketcher.Constraint("Symmetric", 2, 2, 10, 2, -1, 1),
    Sketcher.Constraint("Symmetric", 3, 2, 11, 2, -1, 1),
    Sketcher.Constraint("Symmetric", 6, 2, 14, 2, -1, 1),
    Sketcher.Constraint("Symmetric", 7, 2, 15, 2, -1, 1),
    Sketcher.Constraint("Perpendicular", 0, 4),
    Sketcher.Constraint("Perpendicular", 2, 6),
    Sketcher.Constraint("Perpendicular", 3, 7),
    Sketcher.Constraint("Perpendicular", 4, 8),
    Sketcher.Constraint("Perpendicular", 6, 10),
    Sketcher.Constraint("Perpendicular", 8, 12),
    Sketcher.Constraint("Perpendicular", 10, 14),
    Sketcher.Constraint("Equal", 0, 4),
    Sketcher.Constraint("Equal", 2, 6),
    Sketcher.Constraint("Equal", 3, 7),
    Sketcher.Constraint("Angle", 0, Q("-140 deg")),
    Sketcher.Constraint("Angle", 2, Q("140 deg")),
    Sketcher.Constraint("Angle", 3, Q("-135 deg")),
    Sketcher.Constraint("Radius", 1, 2.75),
    Sketcher.Constraint("Distance", 2, 0.88),
    Sketcher.Constraint("Distance", 3, 1.49),
    Sketcher.Constraint("DistanceY", -1, 1, 0, 2, 2.4359),
])
sketch2.setExpression("Constraints[40]", "Params.sketch2_radius")
sketch2.setExpression("Constraints[41]", "Params.sketch2_length")
sketch2.setExpression("Constraints[42]", "Params.sketch2_length2")
pocket1 = body.newObject("PartDesign::Pocket", "Pocket")
pocket1.Profile = sketch2
pocket1.Type = "ThroughAll"

doc.recompute()
